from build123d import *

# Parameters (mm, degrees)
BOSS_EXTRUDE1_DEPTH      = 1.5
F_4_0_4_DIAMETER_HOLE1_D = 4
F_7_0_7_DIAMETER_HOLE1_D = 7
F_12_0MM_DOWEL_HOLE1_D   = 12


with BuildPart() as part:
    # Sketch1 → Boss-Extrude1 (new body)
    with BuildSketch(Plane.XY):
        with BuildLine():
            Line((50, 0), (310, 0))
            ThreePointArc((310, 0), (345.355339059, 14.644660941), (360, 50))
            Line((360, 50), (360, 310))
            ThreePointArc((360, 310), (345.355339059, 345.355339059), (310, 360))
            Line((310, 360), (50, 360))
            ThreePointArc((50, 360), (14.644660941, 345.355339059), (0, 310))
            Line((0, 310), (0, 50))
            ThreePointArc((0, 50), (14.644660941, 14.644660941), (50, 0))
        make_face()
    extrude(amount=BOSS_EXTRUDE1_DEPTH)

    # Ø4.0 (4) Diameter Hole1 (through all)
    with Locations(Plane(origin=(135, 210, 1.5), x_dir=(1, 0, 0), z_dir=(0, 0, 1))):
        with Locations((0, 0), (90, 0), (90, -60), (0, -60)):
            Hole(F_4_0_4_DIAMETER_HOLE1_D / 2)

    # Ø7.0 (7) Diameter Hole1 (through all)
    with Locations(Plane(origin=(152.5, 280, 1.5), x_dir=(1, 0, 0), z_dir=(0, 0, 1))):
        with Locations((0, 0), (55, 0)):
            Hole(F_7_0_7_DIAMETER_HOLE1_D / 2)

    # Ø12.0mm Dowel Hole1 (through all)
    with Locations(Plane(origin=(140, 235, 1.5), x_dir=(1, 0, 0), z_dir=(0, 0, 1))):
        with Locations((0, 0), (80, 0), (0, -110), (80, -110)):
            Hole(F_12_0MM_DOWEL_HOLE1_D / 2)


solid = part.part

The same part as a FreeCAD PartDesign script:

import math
import FreeCAD as App
import Part
import Sketcher

V = App.Vector
Q = App.Units.Quantity

doc = App.newDocument("Part")
params = doc.addObject("Spreadsheet::Sheet", "Params")
for row, (alias, value) in enumerate([
    ("sketch1_radius", "50 mm"),
    ("sketch1_width", "260 mm"),
    ("pad1_length", "1.5 mm"),
    ("sketch2_diameter", "4 mm"),
    ("hole_diameter", "4 mm"),
    ("sketch3_diameter", "7 mm"),
    ("hole2_diameter", "7 mm"),
    ("sketch4_diameter", "12 mm"),
    ("hole3_diameter", "12 mm"),
], start=1):
    params.set(f"A{row}", alias)
    params.set(f"B{row}", "=" + value)
    params.setAlias(f"B{row}", alias)

body = doc.addObject("PartDesign::Body", "Body")

sketch1 = body.newObject("Sketcher::SketchObject", "Sketch")
sketch1.AttachmentSupport = (doc.getObject("XY_Plane"), [""])
sketch1.MapMode = "FlatFace"
sketch1.addGeometry([
    Part.LineSegment(V(50, 0, 0), V(310, 0, 0)),
    Part.ArcOfCircle(Part.Circle(V(310, 50, 0), V(0, 0, 1), 50), math.radians(-90), math.radians(0)),
    Part.LineSegment(V(360, 50, 0), V(360, 310, 0)),
    Part.ArcOfCircle(Part.Circle(V(310, 310, 0), V(0, 0, 1), 50), math.radians(0), math.radians(90)),
    Part.LineSegment(V(310, 360, 0), V(50, 360, 0)),
    Part.ArcOfCircle(Part.Circle(V(50, 310, 0), V(0, 0, 1), 50), math.radians(90), math.radians(180)),
    Part.LineSegment(V(0, 310, 0), V(0, 50, 0)),
    Part.ArcOfCircle(Part.Circle(V(50, 50, 0), V(0, 0, 1), 50), math.radians(-180), math.radians(-90)),
], False)
sketch1.addConstraint([
    Sketcher.Constraint("Tangent", 0, 2, 1, 1),
    Sketcher.Constraint("Tangent", 1, 2, 2, 1),
    Sketcher.Constraint("Tangent", 2, 2, 3, 1),
    Sketcher.Constraint("Tangent", 3, 2, 4, 1),
    Sketcher.Constraint("Tangent", 4, 2, 5, 1),
    Sketcher.Constraint("Tangent", 5, 2, 6, 1),
    Sketcher.Constraint("Tangent", 6, 2, 7, 1),
    Sketcher.Constraint("Tangent", 7, 2, 0, 1),
    Sketcher.Constraint("Horizontal", 0),
    Sketcher.Constraint("Vertical", 2),
    Sketcher.Constraint("Horizontal", 4),
    Sketcher.Constraint("Vertical", 6),
    Sketcher.Constraint("Equal", 1, 3),
    Sketcher.Constraint("Equal", 3, 5),
    Sketcher.Constraint("Equal", 5, 7),
    Sketcher.Constraint("PointOnObject", 0, 2, -1),
    Sketcher.Constraint("PointOnObject", 5, 2, -2),
    Sketcher.Constraint("Equal", 4, 2),
    Sketcher.Constraint("Radius", 1, Q("50 mm")),
    Sketcher.Constraint("DistanceX", 0, 1, 0, 2, Q("260 mm")),
])
sketch1.setExpression("Constraints[18]", "Params.sketch1_radius")
sketch1.setExpression("Constraints[19]", "Params.sketch1_width")
pad1 = body.newObject("PartDesign::Pad", "Pad")
pad1.Profile = sketch1
pad1.setExpression("Length", "Params.pad1_length")

sketch2 = body.newObject("Sketcher::SketchObject", "Sketch001")
sketch2.AttachmentSupport = (doc.getObject("XY_Plane"), [""])
sketch2.MapMode = "FlatFace"
sketch2.AttachmentOffset = App.Placement(V(0, 0, 1.5), App.Rotation())
sketch2.addGeometry([
    Part.Circle(V(135, 210, 0), V(0, 0, 1), 2),
    Part.Circle(V(225, 210, 0), V(0, 0, 1), 2),
    Part.Circle(V(225, 150, 0), V(0, 0, 1), 2),
    Part.Circle(V(135, 150, 0), V(0, 0, 1), 2),
], False)
sketch2.addConstraint([
    Sketcher.Constraint("Equal", 0, 1),
    Sketcher.Constraint("Equal", 1, 2),
    Sketcher.Constraint("Equal", 2, 3),
    Sketcher.Constraint("Horizontal", 0, 3, 1, 3),
    Sketcher.Constraint("Horizontal", 2, 3, 3, 3),
    Sketcher.Constraint("Vertical", 1, 3, 2, 3),
    Sketcher.Constraint("Vertical", 0, 3, 3, 3),
    Sketcher.Constraint("Diameter", 0, Q("4 mm")),
    Sketcher.Constraint("DistanceX", -1, 1, 0, 3, Q("135 mm")),
    Sketcher.Constraint("DistanceY", -1, 1, 0, 3, Q("210 mm")),
    Sketcher.Constraint("DistanceX", -1, 1, 1, 3, Q("225 mm")),
    Sketcher.Constraint("DistanceY", -1, 1, 2, 3, Q("150 mm")),
])
sketch2.setExpression("Constraints[7]", "Params.sketch2_diameter")
doc.recompute()
hole = body.newObject("PartDesign::Hole", "Hole")
hole.Profile = sketch2
hole.ThreadType = "None"
hole.setExpression("Diameter", "Params.hole_diameter")
hole.DepthType = "ThroughAll"

sketch3 = body.newObject("Sketcher::SketchObject", "Sketch002")
sketch3.AttachmentSupport = (doc.getObject("XY_Plane"), [""])
sketch3.MapMode = "FlatFace"
sketch3.AttachmentOffset = App.Placement(V(0, 0, 1.5), App.Rotation())
sketch3.addGeometry([
    Part.Circle(V(152.5, 280, 0), V(0, 0, 1), 3.5),
    Part.Circle(V(207.5, 280, 0), V(0, 0, 1), 3.5),
], False)
sketch3.addConstraint([
    Sketcher.Constraint("Equal", 0, 1),
    Sketcher.Constraint("Horizontal", 0, 3, 1, 3),
    Sketcher.Constraint("Diameter", 0, Q("7 mm")),
    Sketcher.Constraint("DistanceY", -1, 1, 0, 3, Q("280 mm")),
    Sketcher.Constraint("DistanceX", 0, 3, 1, 3, Q("55 mm")),
    Sketcher.Constraint("DistanceX", -1, 1, 0, 3, Q("152.5 mm")),
])
sketch3.setExpression("Constraints[2]", "Params.sketch3_diameter")
doc.recompute()
hole2 = body.newObject("PartDesign::Hole", "Hole001")
hole2.Profile = sketch3
hole2.ThreadType = "None"
hole2.setExpression("Diameter", "Params.hole2_diameter")
hole2.DepthType = "ThroughAll"

sketch4 = body.newObject("Sketcher::SketchObject", "Sketch003")
sketch4.AttachmentSupport = (doc.getObject("XY_Plane"), [""])
sketch4.MapMode = "FlatFace"
sketch4.AttachmentOffset = App.Placement(V(0, 0, 1.5), App.Rotation())
sketch4.addGeometry([
    Part.Circle(V(140, 235, 0), V(0, 0, 1), 6),
    Part.Circle(V(220, 235, 0), V(0, 0, 1), 6),
    Part.Circle(V(140, 125, 0), V(0, 0, 1), 6),
    Part.Circle(V(220, 125, 0), V(0, 0, 1), 6),
], False)
sketch4.addConstraint([
    Sketcher.Constraint("Equal", 0, 1),
    Sketcher.Constraint("Equal", 1, 2),
    Sketcher.Constraint("Equal", 2, 3),
    Sketcher.Constraint("Horizontal", 0, 3, 1, 3),
    Sketcher.Constraint("Horizontal", 2, 3, 3, 3),
    Sketcher.Constraint("Vertical", 0, 3, 2, 3),
    Sketcher.Constraint("Vertical", 1, 3, 3, 3),
    Sketcher.Constraint("Diameter", 0, Q("12 mm")),
    Sketcher.Constraint("DistanceX", -1, 1, 0, 3, Q("140 mm")),
    Sketcher.Constraint("DistanceY", -1, 1, 0, 3, Q("235 mm")),
    Sketcher.Constraint("DistanceX", -1, 1, 1, 3, Q("220 mm")),
    Sketcher.Constraint("DistanceY", -1, 1, 2, 3, Q("125 mm")),
])
sketch4.setExpression("Constraints[7]", "Params.sketch4_diameter")
doc.recompute()
hole3 = body.newObject("PartDesign::Hole", "Hole002")
hole3.Profile = sketch4
hole3.ThreadType = "None"
hole3.setExpression("Diameter", "Params.hole3_diameter")
hole3.DepthType = "ThroughAll"

doc.recompute()
